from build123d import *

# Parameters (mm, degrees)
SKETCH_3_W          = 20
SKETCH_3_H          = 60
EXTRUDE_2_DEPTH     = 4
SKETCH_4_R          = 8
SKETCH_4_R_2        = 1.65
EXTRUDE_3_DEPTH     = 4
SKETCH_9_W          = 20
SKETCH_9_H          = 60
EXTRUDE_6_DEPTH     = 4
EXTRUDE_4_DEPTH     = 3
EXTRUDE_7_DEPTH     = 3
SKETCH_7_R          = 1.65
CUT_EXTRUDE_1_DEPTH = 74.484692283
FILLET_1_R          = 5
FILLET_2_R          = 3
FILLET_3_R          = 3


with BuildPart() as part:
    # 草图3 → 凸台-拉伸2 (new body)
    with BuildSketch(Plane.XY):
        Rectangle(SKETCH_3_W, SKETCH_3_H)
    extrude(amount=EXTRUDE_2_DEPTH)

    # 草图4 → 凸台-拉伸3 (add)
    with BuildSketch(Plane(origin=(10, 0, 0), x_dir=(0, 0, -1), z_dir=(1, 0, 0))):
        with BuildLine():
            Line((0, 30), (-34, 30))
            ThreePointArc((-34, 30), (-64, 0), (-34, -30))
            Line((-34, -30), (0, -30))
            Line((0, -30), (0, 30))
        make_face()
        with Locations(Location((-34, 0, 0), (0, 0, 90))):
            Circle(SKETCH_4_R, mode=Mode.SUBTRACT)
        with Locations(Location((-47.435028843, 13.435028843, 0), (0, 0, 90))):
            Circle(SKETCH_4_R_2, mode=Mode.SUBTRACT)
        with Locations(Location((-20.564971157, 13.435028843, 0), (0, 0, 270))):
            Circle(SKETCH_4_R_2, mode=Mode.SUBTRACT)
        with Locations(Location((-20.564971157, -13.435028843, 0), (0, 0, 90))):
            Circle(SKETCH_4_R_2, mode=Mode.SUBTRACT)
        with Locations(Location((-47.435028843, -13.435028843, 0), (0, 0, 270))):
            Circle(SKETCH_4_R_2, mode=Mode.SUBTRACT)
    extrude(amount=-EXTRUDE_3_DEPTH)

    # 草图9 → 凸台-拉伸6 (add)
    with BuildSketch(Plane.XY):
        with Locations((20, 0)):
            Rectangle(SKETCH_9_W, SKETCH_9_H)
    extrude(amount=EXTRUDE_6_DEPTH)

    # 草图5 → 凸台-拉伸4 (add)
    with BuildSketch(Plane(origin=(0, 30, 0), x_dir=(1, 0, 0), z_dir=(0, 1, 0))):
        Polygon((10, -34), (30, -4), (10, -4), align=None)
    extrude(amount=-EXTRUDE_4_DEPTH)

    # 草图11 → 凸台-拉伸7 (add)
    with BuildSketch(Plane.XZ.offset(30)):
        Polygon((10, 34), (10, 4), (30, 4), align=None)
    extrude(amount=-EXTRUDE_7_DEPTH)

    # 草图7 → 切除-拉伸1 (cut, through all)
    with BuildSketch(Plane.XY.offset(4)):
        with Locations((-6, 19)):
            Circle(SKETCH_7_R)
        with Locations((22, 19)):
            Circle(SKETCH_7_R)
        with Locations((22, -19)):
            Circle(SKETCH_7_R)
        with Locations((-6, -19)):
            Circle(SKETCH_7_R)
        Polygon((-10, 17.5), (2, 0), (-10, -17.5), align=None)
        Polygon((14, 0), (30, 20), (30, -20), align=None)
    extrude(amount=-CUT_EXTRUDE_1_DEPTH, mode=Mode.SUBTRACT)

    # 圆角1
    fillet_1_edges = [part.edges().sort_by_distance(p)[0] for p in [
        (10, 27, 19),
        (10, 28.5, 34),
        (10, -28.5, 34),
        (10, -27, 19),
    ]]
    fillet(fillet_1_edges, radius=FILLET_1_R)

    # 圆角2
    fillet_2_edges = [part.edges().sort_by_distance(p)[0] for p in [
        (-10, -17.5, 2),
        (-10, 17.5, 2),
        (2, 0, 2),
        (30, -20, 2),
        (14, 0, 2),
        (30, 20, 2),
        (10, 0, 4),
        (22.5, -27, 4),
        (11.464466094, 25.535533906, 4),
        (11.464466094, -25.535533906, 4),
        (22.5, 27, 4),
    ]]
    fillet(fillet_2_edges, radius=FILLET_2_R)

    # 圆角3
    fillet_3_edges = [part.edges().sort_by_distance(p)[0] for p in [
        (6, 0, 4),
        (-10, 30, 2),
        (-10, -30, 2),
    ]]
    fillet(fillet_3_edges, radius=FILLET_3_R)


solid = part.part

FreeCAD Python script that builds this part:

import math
import FreeCAD as App
import Part
import Sketcher

V = App.Vector


def edges_at(feature, points):
    """Names of the edges that pass closest to the given points."""
    edges = feature.Shape.Edges
    near = lambda p: min(range(len(edges)), key=lambda i: edges[i].distToShape(Part.Vertex(*p))[0])
    return sorted({f"Edge{near(p) + 1}" for p in points})

doc = App.newDocument("Part")
body = doc.addObject("PartDesign::Body", "Body")

sketch1 = body.newObject("Sketcher::SketchObject", "Sketch")
sketch1.AttachmentSupport = (doc.getObject("XY_Plane"), [""])
sketch1.MapMode = "FlatFace"
sketch1.addGeometry(Part.LineSegment(V(-10, 30, 0), V(-10, -30, 0)), False)
sketch1.addGeometry(Part.LineSegment(V(-10, -30, 0), V(10, -30, 0)), False)
sketch1.addGeometry(Part.LineSegment(V(10, -30, 0), V(10, 30, 0)), False)
sketch1.addGeometry(Part.LineSegment(V(10, 30, 0), V(-10, 30, 0)), False)
sketch1.addConstraint(Sketcher.Constraint("Coincident", 0, 2, 1, 1))
sketch1.addConstraint(Sketcher.Constraint("Coincident", 1, 2, 2, 1))
sketch1.addConstraint(Sketcher.Constraint("Coincident", 2, 2, 3, 1))
sketch1.addConstraint(Sketcher.Constraint("Coincident", 3, 2, 0, 1))
sketch1.addConstraint(Sketcher.Constraint("Vertical", 0))
sketch1.addConstraint(Sketcher.Constraint("Horizontal", 1))
sketch1.addConstraint(Sketcher.Constraint("Vertical", 2))
sketch1.addConstraint(Sketcher.Constraint("Horizontal", 3))
sketch1.addConstraint(Sketcher.Constraint("Symmetric", 0, 2, 2, 2, -1, 1))
sketch1.addConstraint(Sketcher.Constraint("DistanceX", 1, 1, 1, 2, 20.0))
sketch1.addConstraint(Sketcher.Constraint("DistanceY", 0, 2, 0, 1, 60.0))
pad1 = body.newObject("PartDesign::Pad", "Pad")
pad1.Profile = sketch1
pad1.Length = 4

sketch2 = body.newObject("Sketcher::SketchObject", "Sketch001")
sketch2.AttachmentSupport = (doc.getObject("YZ_Plane"), [""])
sketch2.MapMode = "FlatFace"
sketch2.AttachmentOffset = App.Placement(V(0, 0, 10), App.Rotation())
sketch2.addGeometry(Part.LineSegment(V(30, 0, 0), V(30, 34, 0)), False)
sketch2.addGeometry(Part.ArcOfCircle(Part.Circle(V(0, 34, 0), V(0, 0, 1), 30), math.radians(0), math.radians(180)), False)
sketch2.addGeometry(Part.LineSegment(V(-30, 34, 0), V(-30, 0, 0)), False)
sketch2.addGeometry(Part.LineSegment(V(-30, 0, 0), V(30, 0, 0)), False)
sketch2.addGeometry(Part.Circle(V(-13.435029, 47.435029, 0), V(0, 0, 1), 1.65), False)
sketch2.addGeometry(Part.Circle(V(-13.435029, 20.564971, 0), V(0, 0, 1), 1.65), False)
sketch2.addGeometry(Part.Circle(V(0, 34, 0), V(0, 0, 1), 8), False)
sketch2.addGeometry(Part.Circle(V(13.435029, 47.435029, 0), V(0, 0, 1), 1.65), False)
sketch2.addGeometry(Part.Circle(V(13.435029, 20.564971, 0), V(0, 0, 1), 1.65), False)
sketch2.addConstraint(Sketcher.Constraint("Tangent", 0, 2, 1, 1))
sketch2.addConstraint(Sketcher.Constraint("Tangent", 1, 2, 2, 1))
sketch2.addConstraint(Sketcher.Constraint("Coincident", 2, 2, 3, 1))
sketch2.addConstraint(Sketcher.Constraint("Coincident", 3, 2, 0, 1))
sketch2.addConstraint(Sketcher.Constraint("Vertical", 0))
sketch2.addConstraint(Sketcher.Constraint("Vertical", 2))
sketch2.addConstraint(Sketcher.Constraint("Horizontal", 3))
sketch2.addConstraint(Sketcher.Constraint("Coincident", 6, 3, 1, 3))
sketch2.addConstraint(Sketcher.Constraint("Equal", 4, 5))
sketch2.addConstraint(Sketcher.Constraint("Equal", 5, 7))
sketch2.addConstraint(Sketcher.Constraint("Equal", 7, 8))
sketch2.addConstraint(Sketcher.Constraint("Symmetric", 2, 2, 3, 2, -1, 1))
sketch2.addConstraint(Sketcher.Constraint("Symmetric", 4, 3, 7, 3, -2))
sketch2.addConstraint(Sketcher.Constraint("Symmetric", 5, 3, 8, 3, -2))
sketch2.addConstraint(Sketcher.Constraint("Vertical", 4, 3, 5, 3))
sketch2.addConstraint(Sketcher.Constraint("Diameter", 6, 16.0))
sketch2.addConstraint(Sketcher.Constraint("Radius", 1, 30.0))
sketch2.addConstraint(Sketcher.Constraint("Diameter", 4, 3.3))
sketch2.addConstraint(Sketcher.Constraint("DistanceY", 0, 1, 0, 2, 34.0))
sketch2.addConstraint(Sketcher.Constraint("DistanceX", 4, 3, -1, 1, 13.435029))
sketch2.addConstraint(Sketcher.Constraint("DistanceY", -1, 1, 4, 3, 47.435029))
sketch2.addConstraint(Sketcher.Constraint("DistanceY", -1, 1, 5, 3, 20.564971))
pad2 = body.newObject("PartDesign::Pad", "Pad001")
pad2.Profile = sketch2
pad2.Length = 4
pad2.Reversed = True

sketch3 = body.newObject("Sketcher::SketchObject", "Sketch002")
sketch3.AttachmentSupport = (doc.getObject("XY_Plane"), [""])
sketch3.MapMode = "FlatFace"
sketch3.addGeometry(Part.LineSegment(V(10, 30, 0), V(10, -30, 0)), False)
sketch3.addGeometry(Part.LineSegment(V(10, -30, 0), V(30, -30, 0)), False)
sketch3.addGeometry(Part.LineSegment(V(30, -30, 0), V(30, 30, 0)), False)
sketch3.addGeometry(Part.LineSegment(V(30, 30, 0), V(10, 30, 0)), False)
sketch3.addConstraint(Sketcher.Constraint("Coincident", 0, 2, 1, 1))
sketch3.addConstraint(Sketcher.Constraint("Coincident", 1, 2, 2, 1))
sketch3.addConstraint(Sketcher.Constraint("Coincident", 2, 2, 3, 1))
sketch3.addConstraint(Sketcher.Constraint("Coincident", 3, 2, 0, 1))
sketch3.addConstraint(Sketcher.Constraint("Vertical", 0))
sketch3.addConstraint(Sketcher.Constraint("Horizontal", 1))
sketch3.addConstraint(Sketcher.Constraint("Vertical", 2))
sketch3.addConstraint(Sketcher.Constraint("Horizontal", 3))
sketch3.addConstraint(Sketcher.Constraint("DistanceX", 1, 1, 1, 2, 20.0))
sketch3.addConstraint(Sketcher.Constraint("DistanceY", 0, 2, 0, 1, 60.0))
sketch3.addConstraint(Sketcher.Constraint("DistanceX", -1, 1, 0, 2, 10.0))
sketch3.addConstraint(Sketcher.Constraint("DistanceY", 0, 2, -1, 1, 30.0))
pad3 = body.newObject("PartDesign::Pad", "Pad002")
pad3.Profile = sketch3
pad3.Length = 4

sketch4 = body.newObject("Sketcher::SketchObject", "Sketch003")
sketch4.AttachmentSupport = (doc.getObject("XZ_Plane"), [""])
sketch4.MapMode = "FlatFace"
sketch4.AttachmentOffset = App.Placement(V(0, 0, -30), App.Rotation())
sketch4.addGeometry(Part.LineSegment(V(10, 34, 0), V(30, 4, 0)), False)
sketch4.addGeometry(Part.LineSegment(V(30, 4, 0), V(10, 4, 0)), False)
sketch4.addGeometry(Part.LineSegment(V(10, 4, 0), V(10, 34, 0)), False)
sketch4.addConstraint(Sketcher.Constraint("Coincident", 0, 2, 1, 1))
sketch4.addConstraint(Sketcher.Constraint("Coincident", 1, 2, 2, 1))
sketch4.addConstraint(Sketcher.Constraint("Coincident", 2, 2, 0, 1))
sketch4.addConstraint(Sketcher.Constraint("Horizontal", 1))
sketch4.addConstraint(Sketcher.Constraint("Vertical", 2))
sketch4.addConstraint(Sketcher.Constraint("DistanceX", 1, 2, 1, 1, 20.0))
sketch4.addConstraint(Sketcher.Constraint("DistanceY", 2, 1, 2, 2, 30.0))
sketch4.addConstraint(Sketcher.Constraint("DistanceX", -1, 1, 0, 2, 30.0))
sketch4.addConstraint(Sketcher.Constraint("DistanceY", -1, 1, 0, 2, 4.0))
pad4 = body.newObject("PartDesign::Pad", "Pad003")
pad4.Profile = sketch4
pad4.Length = 3

sketch5 = body.newObject("Sketcher::SketchObject", "Sketch004")
sketch5.AttachmentSupport = (doc.getObject("XZ_Plane"), [""])
sketch5.MapMode = "FlatFace"
sketch5.AttachmentOffset = App.Placement(V(0, 0, 30), App.Rotation())
sketch5.addGeometry(Part.LineSegment(V(10, 34, 0), V(10, 4, 0)), False)
sketch5.addGeometry(Part.LineSegment(V(10, 4, 0), V(30, 4, 0)), False)
sketch5.addGeometry(Part.LineSegment(V(30, 4, 0), V(10, 34, 0)), False)
sketch5.addConstraint(Sketcher.Constraint("Coincident", 0, 2, 1, 1))
sketch5.addConstraint(Sketcher.Constraint("Coincident", 1, 2, 2, 1))
sketch5.addConstraint(Sketcher.Constraint("Coincident", 2, 2, 0, 1))
sketch5.addConstraint(Sketcher.Constraint("Vertical", 0))
sketch5.addConstraint(Sketcher.Constraint("Horizontal", 1))
sketch5.addConstraint(Sketcher.Constraint("DistanceX", 1, 1, 1, 2, 20.0))
sketch5.addConstraint(Sketcher.Constraint("DistanceY", 0, 2, 0, 1, 30.0))
sketch5.addConstraint(Sketcher.Constraint("DistanceX", -1, 1, 0, 2, 10.0))
sketch5.addConstraint(Sketcher.Constraint("DistanceY", -1, 1, 0, 2, 4.0))
pad5 = body.newObject("PartDesign::Pad", "Pad004")
pad5.Profile = sketch5
pad5.Length = 3
pad5.Reversed = True

sketch6 = body.newObject("Sketcher::SketchObject", "Sketch005")
sketch6.AttachmentSupport = (doc.getObject("XY_Plane"), [""])
sketch6.MapMode = "FlatFace"
sketch6.AttachmentOffset = App.Placement(V(0, 0, 4), App.Rotation())
sketch6.addGeometry(Part.Circle(V(-6, 19, 0), V(0, 0, 1), 1.65), False)
sketch6.addGeometry(Part.Circle(V(22, 19, 0), V(0, 0, 1), 1.65), False)
sketch6.addGeometry(Part.Circle(V(22, -19, 0), V(0, 0, 1), 1.65), False)
sketch6.addGeometry(Part.Circle(V(-6, -19, 0), V(0, 0, 1), 1.65), False)
sketch6.addGeometry(Part.LineSegment(V(2, 0, 0), V(-10, 17.5, 0)), False)
sketch6.addGeometry(Part.LineSegment(V(-10, 17.5, 0), V(-10, -17.5, 0)), False)
sketch6.addGeometry(Part.LineSegment(V(-10, -17.5, 0), V(2, 0, 0)), False)
sketch6.addGeometry(Part.LineSegment(V(30, 20, 0), V(14, 0, 0)), False)
sketch6.addGeometry(Part.LineSegment(V(14, 0, 0), V(30, -20, 0)), False)
sketch6.addGeometry(Part.LineSegment(V(30, -20, 0), V(30, 20, 0)), False)
sketch6.addConstraint(Sketcher.Constraint("Coincident", 4, 2, 5, 1))
sketch6.addConstraint(Sketcher.Constraint("Coincident", 5, 2, 6, 1))
sketch6.addConstraint(Sketcher.Constraint("Coincident", 6, 2, 4, 1))
sketch6.addConstraint(Sketcher.Constraint("Coincident", 7, 2, 8, 1))
sketch6.addConstraint(Sketcher.Constraint("Coincident", 8, 2, 9, 1))
sketch6.addConstraint(Sketcher.Constraint("Coincident", 9, 2, 7, 1))
sketch6.addConstraint(Sketcher.Constraint("Vertical", 5))
sketch6.addConstraint(Sketcher.Constraint("Vertical", 9))
sketch6.addConstraint(Sketcher.Constraint("Equal", 0, 1))
sketch6.addConstraint(Sketcher.Constraint("Equal", 1, 2))
sketch6.addConstraint(Sketcher.Constraint("Equal", 2, 3))
sketch6.addConstraint(Sketcher.Constraint("Symmetric", 1, 3, 2, 3, -1))
sketch6.addConstraint(Sketcher.Constraint("Symmetric", 0, 3, 3, 3, -1))
sketch6.addConstraint(Sketcher.Constraint("PointOnObject", 6, 2, -1))
sketch6.addConstraint(Sketcher.Constraint("PointOnObject", 7, 2, -1))
sketch6.addConstraint(Sketcher.Constraint("Horizontal", 0, 3, 1, 3))
sketch6.addConstraint(Sketcher.Constraint("Equal", 4, 6))
sketch6.addConstraint(Sketcher.Constraint("Equal", 7, 8))
sketch6.addConstraint(Sketcher.Constraint("Diameter", 0, 3.3))
sketch6.addConstraint(Sketcher.Constraint("DistanceY", 5, 2, 5, 1, 35.0))
sketch6.addConstraint(Sketcher.Constraint("DistanceY", 9, 1, 9, 2, 40.0))
sketch6.addConstraint(Sketcher.Constraint("DistanceX", 0, 3, -1, 1, 6.0))
sketch6.addConstraint(Sketcher.Constraint("DistanceY", -1, 1, 0, 3, 19.0))
sketch6.addConstraint(Sketcher.Constraint("DistanceX", -1, 1, 1, 3, 22.0))
sketch6.addConstraint(Sketcher.Constraint("DistanceX", 4, 2, -1, 1, 10.0))
sketch6.addConstraint(Sketcher.Constraint("DistanceX", -1, 1, 6, 2, 2.0))
sketch6.addConstraint(Sketcher.Constraint("DistanceX", -1, 1, 7, 2, 14.0))
sketch6.addConstraint(Sketcher.Constraint("DistanceX", -1, 1, 8, 2, 30.0))
pocket1 = body.newObject("PartDesign::Pocket", "Pocket")
pocket1.Profile = sketch6
pocket1.Type = "ThroughAll"
doc.recompute()

fillet = body.newObject("PartDesign::Fillet", "Fillet")
fillet.Base = (pocket1, edges_at(pocket1, [
    (10, 27, 19),
    (10, 28.5, 34),
    (10, -28.5, 34),
    (10, -27, 19),
]))
fillet.Radius = 5
doc.recompute()

fillet2 = body.newObject("PartDesign::Fillet", "Fillet001")
fillet2.Base = (fillet, edges_at(fillet, [
    (-10, -17.5, 2),
    (-10, 17.5, 2),
    (2, 0, 2),
    (30, -20, 2),
    (14, 0, 2),
    (30, 20, 2),
    (10, 0, 4),
    (22.5, -27, 4),
    (11.464, 25.536, 4),
    (11.464, -25.536, 4),
    (22.5, 27, 4),
]))
fillet2.Radius = 3
doc.recompute()

fillet3 = body.newObject("PartDesign::Fillet", "Fillet002")
fillet3.Base = (fillet2, edges_at(fillet2, [(6, 0, 4), (-10, 30, 2), (-10, -30, 2)]))
fillet3.Radius = 3

doc.recompute()
